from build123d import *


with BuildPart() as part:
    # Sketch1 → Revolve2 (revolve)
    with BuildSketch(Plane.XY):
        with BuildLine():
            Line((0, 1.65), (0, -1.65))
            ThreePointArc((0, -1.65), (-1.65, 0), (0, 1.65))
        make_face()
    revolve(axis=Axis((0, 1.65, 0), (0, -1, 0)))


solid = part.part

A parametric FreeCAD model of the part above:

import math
import FreeCAD as App
import Part
import Sketcher

V = App.Vector

doc = App.newDocument("Part")
body = doc.addObject("PartDesign::Body", "Body")

# Sketch on XY plane
sketch1 = body.newObject("Sketcher::SketchObject", "Sketch")
sketch1.AttachmentSupport = (doc.getObject("XY_Plane"), [""])
sketch1.MapMode = "FlatFace"
sketch1.addGeometry(Part.LineSegment(V(0, -1.6, 0), V(0, 1.6, 0)), False)
sketch1.addGeometry(Part.ArcOfCircle(Part.Circle(V(0, 0, 0), V(0, 0, 1), 1.6), math.radians(90), math.radians(270)), False)
sketch1.addConstraint(Sketcher.Constraint("Coincident", 0, 1, 1, 2))
sketch1.addConstraint(Sketcher.Constraint("Coincident", 1, 1, 0, 2))
sketch1.addConstraint(Sketcher.Constraint("Vertical", 0))
sketch1.addConstraint(Sketcher.Constraint("Coincident", 1, 3, -1, 1))
sketch1.addConstraint(Sketcher.Constraint("PointOnObject", 0, 1, -2))
sketch1.addConstraint(Sketcher.Constraint("Radius", 1, 1.65))
revolution = body.newObject("PartDesign::Revolution", "Revolution")
revolution.Profile = sketch1
revolution.ReferenceAxis = (sketch1, ["V_Axis"])
revolution.Angle = 360

doc.recompute()
